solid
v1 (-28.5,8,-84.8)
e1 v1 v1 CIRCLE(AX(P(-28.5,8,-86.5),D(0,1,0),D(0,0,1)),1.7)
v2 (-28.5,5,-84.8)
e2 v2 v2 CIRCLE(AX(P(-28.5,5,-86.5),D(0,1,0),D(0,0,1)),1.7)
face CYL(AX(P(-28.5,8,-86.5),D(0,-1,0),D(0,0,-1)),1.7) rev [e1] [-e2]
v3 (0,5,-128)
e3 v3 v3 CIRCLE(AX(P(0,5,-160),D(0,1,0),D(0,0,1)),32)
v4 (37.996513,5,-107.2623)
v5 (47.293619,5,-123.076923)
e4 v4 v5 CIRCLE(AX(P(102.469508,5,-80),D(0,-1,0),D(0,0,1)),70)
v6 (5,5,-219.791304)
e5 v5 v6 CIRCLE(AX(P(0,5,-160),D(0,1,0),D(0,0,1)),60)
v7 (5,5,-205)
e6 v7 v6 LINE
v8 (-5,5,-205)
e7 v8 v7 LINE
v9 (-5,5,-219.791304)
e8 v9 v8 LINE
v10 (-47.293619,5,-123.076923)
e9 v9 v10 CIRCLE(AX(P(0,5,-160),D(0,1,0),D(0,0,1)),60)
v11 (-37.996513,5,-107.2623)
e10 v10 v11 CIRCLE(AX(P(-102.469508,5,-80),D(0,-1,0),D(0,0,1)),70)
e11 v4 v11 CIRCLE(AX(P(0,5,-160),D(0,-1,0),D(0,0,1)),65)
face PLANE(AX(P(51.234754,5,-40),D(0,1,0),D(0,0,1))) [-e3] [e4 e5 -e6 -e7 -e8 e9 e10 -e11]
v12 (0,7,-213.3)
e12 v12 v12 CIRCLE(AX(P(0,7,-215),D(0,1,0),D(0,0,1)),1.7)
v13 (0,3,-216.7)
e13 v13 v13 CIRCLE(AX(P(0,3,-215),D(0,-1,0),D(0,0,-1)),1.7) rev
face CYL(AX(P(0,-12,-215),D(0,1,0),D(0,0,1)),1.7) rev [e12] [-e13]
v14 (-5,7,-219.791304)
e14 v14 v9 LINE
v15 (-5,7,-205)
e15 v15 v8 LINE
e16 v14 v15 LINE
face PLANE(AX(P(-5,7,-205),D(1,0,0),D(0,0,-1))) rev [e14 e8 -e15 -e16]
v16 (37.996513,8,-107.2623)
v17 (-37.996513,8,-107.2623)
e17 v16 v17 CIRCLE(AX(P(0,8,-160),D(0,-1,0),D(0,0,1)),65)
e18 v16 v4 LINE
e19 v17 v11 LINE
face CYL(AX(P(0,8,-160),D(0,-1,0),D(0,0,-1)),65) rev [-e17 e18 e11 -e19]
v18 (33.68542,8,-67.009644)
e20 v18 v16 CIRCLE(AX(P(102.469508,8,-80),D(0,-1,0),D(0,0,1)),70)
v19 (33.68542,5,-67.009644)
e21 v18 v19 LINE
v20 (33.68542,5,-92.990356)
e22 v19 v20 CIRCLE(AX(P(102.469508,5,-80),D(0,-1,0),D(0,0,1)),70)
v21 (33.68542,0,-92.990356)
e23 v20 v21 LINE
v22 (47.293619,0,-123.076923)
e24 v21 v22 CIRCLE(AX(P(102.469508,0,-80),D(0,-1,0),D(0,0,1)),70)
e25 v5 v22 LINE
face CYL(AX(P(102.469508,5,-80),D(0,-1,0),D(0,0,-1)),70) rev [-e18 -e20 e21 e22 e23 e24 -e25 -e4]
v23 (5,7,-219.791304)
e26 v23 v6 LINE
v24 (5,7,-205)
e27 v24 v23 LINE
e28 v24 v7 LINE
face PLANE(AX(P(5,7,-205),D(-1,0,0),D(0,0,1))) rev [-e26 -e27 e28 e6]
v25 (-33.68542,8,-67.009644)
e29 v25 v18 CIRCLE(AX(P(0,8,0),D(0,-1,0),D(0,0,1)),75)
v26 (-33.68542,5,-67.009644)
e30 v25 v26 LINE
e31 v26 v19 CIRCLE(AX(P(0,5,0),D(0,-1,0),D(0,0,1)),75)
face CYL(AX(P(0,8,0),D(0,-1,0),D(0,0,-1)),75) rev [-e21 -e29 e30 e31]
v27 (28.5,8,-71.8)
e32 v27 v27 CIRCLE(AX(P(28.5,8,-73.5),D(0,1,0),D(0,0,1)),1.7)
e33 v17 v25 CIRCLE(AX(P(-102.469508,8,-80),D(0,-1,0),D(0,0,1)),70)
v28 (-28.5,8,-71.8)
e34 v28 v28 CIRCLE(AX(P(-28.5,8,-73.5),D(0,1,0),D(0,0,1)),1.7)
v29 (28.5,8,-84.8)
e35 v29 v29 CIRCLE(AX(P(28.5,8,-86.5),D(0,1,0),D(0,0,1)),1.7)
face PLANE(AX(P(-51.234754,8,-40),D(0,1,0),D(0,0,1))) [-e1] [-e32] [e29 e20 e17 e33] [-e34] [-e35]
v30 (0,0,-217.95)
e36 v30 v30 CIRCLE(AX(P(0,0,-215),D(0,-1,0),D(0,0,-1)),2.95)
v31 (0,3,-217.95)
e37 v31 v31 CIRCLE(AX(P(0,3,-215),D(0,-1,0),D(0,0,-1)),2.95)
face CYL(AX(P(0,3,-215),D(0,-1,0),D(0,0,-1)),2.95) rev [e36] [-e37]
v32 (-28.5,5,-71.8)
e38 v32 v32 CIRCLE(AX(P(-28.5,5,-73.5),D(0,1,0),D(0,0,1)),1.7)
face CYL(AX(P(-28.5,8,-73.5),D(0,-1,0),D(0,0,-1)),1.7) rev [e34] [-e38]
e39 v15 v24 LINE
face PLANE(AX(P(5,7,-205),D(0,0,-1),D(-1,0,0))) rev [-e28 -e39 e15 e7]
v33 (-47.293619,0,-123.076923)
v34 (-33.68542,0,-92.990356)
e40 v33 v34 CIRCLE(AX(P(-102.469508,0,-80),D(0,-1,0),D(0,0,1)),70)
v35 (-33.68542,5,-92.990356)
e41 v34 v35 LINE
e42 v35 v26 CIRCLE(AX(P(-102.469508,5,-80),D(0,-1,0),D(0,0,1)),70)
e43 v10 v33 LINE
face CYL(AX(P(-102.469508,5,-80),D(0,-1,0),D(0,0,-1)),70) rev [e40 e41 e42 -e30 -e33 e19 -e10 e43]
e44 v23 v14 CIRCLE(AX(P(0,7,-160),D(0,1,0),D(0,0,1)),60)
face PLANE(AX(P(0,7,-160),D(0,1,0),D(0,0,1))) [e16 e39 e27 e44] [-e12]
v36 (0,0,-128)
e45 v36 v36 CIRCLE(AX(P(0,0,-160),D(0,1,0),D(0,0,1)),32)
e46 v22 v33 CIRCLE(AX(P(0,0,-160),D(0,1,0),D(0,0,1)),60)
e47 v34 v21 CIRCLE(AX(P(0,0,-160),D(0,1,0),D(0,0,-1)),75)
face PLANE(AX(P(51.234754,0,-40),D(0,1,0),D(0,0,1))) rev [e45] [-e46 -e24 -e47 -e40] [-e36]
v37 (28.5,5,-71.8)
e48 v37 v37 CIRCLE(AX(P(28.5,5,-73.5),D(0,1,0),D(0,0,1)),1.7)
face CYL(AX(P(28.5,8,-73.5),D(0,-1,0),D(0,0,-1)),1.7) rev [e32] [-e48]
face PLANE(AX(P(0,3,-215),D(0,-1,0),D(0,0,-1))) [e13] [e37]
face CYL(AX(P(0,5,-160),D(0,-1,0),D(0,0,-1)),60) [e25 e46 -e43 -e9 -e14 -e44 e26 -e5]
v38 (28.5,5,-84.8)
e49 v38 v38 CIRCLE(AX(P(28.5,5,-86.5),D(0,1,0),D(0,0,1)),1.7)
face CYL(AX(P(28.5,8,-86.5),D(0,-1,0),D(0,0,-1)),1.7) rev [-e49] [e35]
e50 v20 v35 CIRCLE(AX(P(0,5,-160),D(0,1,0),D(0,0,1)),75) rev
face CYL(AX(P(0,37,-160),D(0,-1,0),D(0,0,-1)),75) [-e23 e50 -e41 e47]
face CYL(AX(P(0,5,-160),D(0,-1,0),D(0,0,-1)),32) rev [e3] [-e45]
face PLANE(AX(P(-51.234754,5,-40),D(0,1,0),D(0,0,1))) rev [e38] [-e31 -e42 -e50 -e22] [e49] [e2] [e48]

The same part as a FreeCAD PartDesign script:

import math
import FreeCAD as App
import Part
import Sketcher

V = App.Vector
Q = App.Units.Quantity

doc = App.newDocument("Part")
params = doc.addObject("Spreadsheet::Sheet", "Params")
for row, (alias, value) in enumerate([
    ("sketch1_diameter", "64 mm"),
    ("sketch1_radius", "60 mm"),
    ("sketch1_radius2", "70 mm"),
    ("pad1_length", "5 mm"),
    ("sketch2_radius", "60 mm"),
    ("sketch2_width", "10 mm"),
    ("pad2_length", "2 mm"),
    ("sketch3_diameter", "3.4 mm"),
    ("pocket1_length", "19 mm"),
    ("sketch4_diameter", "5.9 mm"),
    ("pocket2_length", "3 mm"),
    ("sketch5_diameter", "3.4 mm"),
    ("pocket3_length", "5 mm"),
    ("sketch6_radius", "75 mm"),
    ("sketch6_width", "130 mm"),
    ("sketch6_height", "200 mm"),
    ("pocket4_length", "37 mm"),
    ("sketch7_radius", "70 mm"),
    ("sketch7_radius2", "65 mm"),
    ("sketch7_radius3", "75 mm"),
    ("sketch7_diameter", "3.4 mm"),
    ("pad3_length", "3 mm"),
], start=1):
    params.set(f"A{row}", alias)
    params.set(f"B{row}", "=" + value)
    params.setAlias(f"B{row}", alias)

body = doc.addObject("PartDesign::Body", "Body")

# Sketch on XZ plane
sketch1 = body.newObject("Sketcher::SketchObject", "Sketch")
sketch1.AttachmentSupport = (doc.getObject("XZ_Plane"), [""])
sketch1.MapMode = "FlatFace"
sketch1.addGeometry([
    Part.ArcOfCircle(Part.Circle(V(0, 0, 0), V(0, 0, 1), 60), math.radians(-38), math.radians(218)),  # 0
    Part.ArcOfCircle(Part.Circle(V(102, -80, 0), V(0, 0, 1), 70), math.radians(142), math.radians(218)),  # 1
    Part.ArcOfCircle(Part.Circle(V(0, -160, 0), V(0, 0, 1), 60), math.radians(142), math.radians(398)),  # 2
    Part.ArcOfCircle(Part.Circle(V(-102, -80, 0), V(0, 0, 1), 70), math.radians(-38), math.radians(38)),  # 3
    Part.Circle(V(0, 0, 0), V(0, 0, 1), 32),  # 4
    Part.Circle(V(0, -160, 0), V(0, 0, 1), 32),  # 5
], False)
sketch1.addConstraint([
    Sketcher.Constraint("Tangent", 0, 1, 1, 1),
    Sketcher.Constraint("Tangent", 1, 2, 2, 2),
    Sketcher.Constraint("Tangent", 2, 1, 3, 1),
    Sketcher.Constraint("Tangent", 3, 2, 0, 2),
    Sketcher.Constraint("Coincident", 0, 3, -1, 1),
    Sketcher.Constraint("Coincident", 4, 3, -1, 1),
    Sketcher.Constraint("Coincident", 5, 3, 2, 3),
    Sketcher.Constraint("Equal", 0, 2),
    Sketcher.Constraint("Equal", 1, 3),
    Sketcher.Constraint("Equal", 4, 5),
    Sketcher.Constraint("PointOnObject", 2, 3, -2),
    Sketcher.Constraint("Diameter", 4, Q("64 mm")),
    Sketcher.Constraint("Radius", 0, Q("60 mm")),
    Sketcher.Constraint("Radius", 1, Q("70 mm")),
    Sketcher.Constraint("DistanceY", 1, 3, -1, 1, Q("80 mm")),
])
sketch1.setExpression("Constraints[11]", "Params.sketch1_diameter")
sketch1.setExpression("Constraints[12]", "Params.sketch1_radius")
sketch1.setExpression("Constraints[13]", "Params.sketch1_radius2")
pad1 = body.newObject("PartDesign::Pad", "Pad")
pad1.Profile = sketch1
pad1.setExpression("Length", "Params.pad1_length")
pad1.Reversed = True

# Sketch on XZ plane
sketch2 = body.newObject("Sketcher::SketchObject", "Sketch001")
sketch2.AttachmentSupport = (doc.getObject("XZ_Plane"), [""])
sketch2.MapMode = "FlatFace"
sketch2.AttachmentOffset = App.Placement(V(0, 0, -5), App.Rotation())
sketch2.addGeometry([
    Part.LineSegment(V(-5, -205, 0), V(5, -205, 0)),  # 0
    Part.LineSegment(V(5, -205, 0), V(5, -220, 0)),  # 1
    Part.ArcOfCircle(Part.Circle(V(0, -160, 0), V(0, 0, 1), 60), math.radians(-94.78), math.radians(-85.22)),  # 2
    Part.LineSegment(V(-5, -220, 0), V(-5, -205, 0)),  # 3
    Part.LineSegment(V(5, 45, 0), V(-5, 45, 0)),  # 4
    Part.LineSegment(V(-5, 45, 0), V(-5, 60, 0)),  # 5
    Part.ArcOfCircle(Part.Circle(V(0, 0, 0), V(0, 0, 1), 60), math.radians(85.22), math.radians(94.78)),  # 6
    Part.LineSegment(V(5, 60, 0), V(5, 45, 0)),  # 7
], False)
sketch2.addConstraint([
    Sketcher.Constraint("Coincident", 0, 2, 1, 1),
    Sketcher.Constraint("Coincident", 1, 2, 2, 2),
    Sketcher.Constraint("Coincident", 2, 1, 3, 1),
    Sketcher.Constraint("Coincident", 3, 2, 0, 1),
    Sketcher.Constraint("Coincident", 4, 2, 5, 1),
    Sketcher.Constraint("Coincident", 5, 2, 6, 2),
    Sketcher.Constraint("Coincident", 6, 1, 7, 1),
    Sketcher.Constraint("Coincident", 7, 2, 4, 1),
    Sketcher.Constraint("Horizontal", 0),
    Sketcher.Constraint("Vertical", 1),
    Sketcher.Constraint("Vertical", 3),
    Sketcher.Constraint("Horizontal", 4),
    Sketcher.Constraint("Vertical", 5),
    Sketcher.Constraint("Vertical", 7),
    Sketcher.Constraint("Coincident", 6, 3, -1, 1),
    Sketcher.Constraint("Equal", 2, 6),
    Sketcher.Constraint("Symmetric", 1, 2, 2, 1, -2),
    Sketcher.Constraint("Horizontal", 5, 2, 6, 1),
    Sketcher.Constraint("Vertical", 3, 2, 4, 2),
    Sketcher.Constraint("Equal", 3, 5),
    Sketcher.Constraint("Radius", 2, Q("60 mm")),
    Sketcher.Constraint("DistanceX", 0, 1, 0, 2, Q("10 mm")),
    Sketcher.Constraint("DistanceY", 2, 3, -1, 1, Q("160 mm")),
    Sketcher.Constraint("DistanceY", 0, 2, -1, 1, Q("205 mm")),
])
sketch2.setExpression("Constraints[20]", "Params.sketch2_radius")
sketch2.setExpression("Constraints[21]", "Params.sketch2_width")
pad2 = body.newObject("PartDesign::Pad", "Pad001")
pad2.Profile = sketch2
pad2.setExpression("Length", "Params.pad2_length")
pad2.Reversed = True

# Sketch on XZ plane
sketch3 = body.newObject("Sketcher::SketchObject", "Sketch002")
sketch3.AttachmentSupport = (doc.getObject("XZ_Plane"), [""])
sketch3.MapMode = "FlatFace"
sketch3.AttachmentOffset = App.Placement(V(0, 0, -7), App.Rotation())
sketch3.addGeometry([
    Part.Circle(V(0, -215, 0), V(0, 0, 1), 1.7),
    Part.Circle(V(0, 55, 0), V(0, 0, 1), 1.7),
], False)
sketch3.addConstraint([
    Sketcher.Constraint("Equal", 0, 1),
    Sketcher.Constraint("PointOnObject", 0, 3, -2),
    Sketcher.Constraint("PointOnObject", 1, 3, -2),
    Sketcher.Constraint("Diameter", 0, Q("3.4 mm")),
    Sketcher.Constraint("DistanceY", 0, 3, -1, 1, Q("215 mm")),
    Sketcher.Constraint("DistanceY", -1, 1, 1, 3, Q("55 mm")),
])
sketch3.setExpression("Constraints[3]", "Params.sketch3_diameter")
pocket1 = body.newObject("PartDesign::Pocket", "Pocket")
pocket1.Profile = sketch3
pocket1.setExpression("Length", "Params.pocket1_length")
pocket1.Reversed = True

# Sketch on XZ plane
sketch4 = body.newObject("Sketcher::SketchObject", "Sketch003")
sketch4.AttachmentSupport = (doc.getObject("XZ_Plane"), [""])
sketch4.MapMode = "FlatFace"
sketch4.addGeometry([
    Part.Circle(V(0, 55, 0), V(0, 0, 1), 3),
    Part.Circle(V(0, -215, 0), V(0, 0, 1), 3),
], False)
sketch4.addConstraint([
    Sketcher.Constraint("Equal", 0, 1),
    Sketcher.Constraint("PointOnObject", 0, 3, -2),
    Sketcher.Constraint("PointOnObject", 1, 3, -2),
    Sketcher.Constraint("Diameter", 0, Q("5.9 mm")),
    Sketcher.Constraint("DistanceY", -1, 1, 0, 3, Q("55 mm")),
    Sketcher.Constraint("DistanceY", 1, 3, -1, 1, Q("215 mm")),
])
sketch4.setExpression("Constraints[3]", "Params.sketch4_diameter")
pocket2 = body.newObject("PartDesign::Pocket", "Pocket001")
pocket2.Profile = sketch4
pocket2.setExpression("Length", "Params.pocket2_length")

# Sketch on XZ plane
sketch5 = body.newObject("Sketcher::SketchObject", "Sketch004")
sketch5.AttachmentSupport = (doc.getObject("XZ_Plane"), [""])
sketch5.MapMode = "FlatFace"
sketch5.addGeometry([
    Part.Circle(V(-28.5, -73.5, 0), V(0, 0, 1), 1.7),
    Part.Circle(V(-28.5, -86.5, 0), V(0, 0, 1), 1.7),
    Part.Circle(V(28.5, -86.5, 0), V(0, 0, 1), 1.7),
    Part.Circle(V(28.5, -73.5, 0), V(0, 0, 1), 1.7),
], False)
sketch5.addConstraint([
    Sketcher.Constraint("Equal", 0, 1),
    Sketcher.Constraint("Equal", 1, 2),
    Sketcher.Constraint("Equal", 2, 3),
    Sketcher.Constraint("Symmetric", 1, 3, 2, 3, -2),
    Sketcher.Constraint("Symmetric", 0, 3, 3, 3, -2),
    Sketcher.Constraint("Vertical", 0, 3, 1, 3),
    Sketcher.Constraint("Diameter", 0, Q("3.4 mm")),
    Sketcher.Constraint("DistanceY", 1, 3, 0, 3, Q("13 mm")),
    Sketcher.Constraint("DistanceX", 1, 3, 2, 3, Q("57 mm")),
    Sketcher.Constraint("DistanceY", 0, 3, -1, 1, Q("73.5 mm")),
])
sketch5.setExpression("Constraints[6]", "Params.sketch5_diameter")
pocket3 = body.newObject("PartDesign::Pocket", "Pocket002")
pocket3.Profile = sketch5
pocket3.setExpression("Length", "Params.pocket3_length")

# Sketch on XZ plane
sketch6 = body.newObject("Sketcher::SketchObject", "Sketch005")
sketch6.AttachmentSupport = (doc.getObject("XZ_Plane"), [""])
sketch6.MapMode = "FlatFace"
sketch6.addGeometry([
    Part.LineSegment(V(65, 77, 0), V(-65, 77, 0)),
    Part.LineSegment(V(-65, 77, 0), V(-65, -123, 0)),
    Part.ArcOfCircle(Part.Circle(V(0, -160, 0), V(0, 0, 1), 75), math.radians(30), math.radians(150)),
    Part.LineSegment(V(65, -123, 0), V(65, 77, 0)),
], False)
sketch6.addConstraint([
    Sketcher.Constraint("Coincident", 0, 2, 1, 1),
    Sketcher.Constraint("Coincident", 1, 2, 2, 2),
    Sketcher.Constraint("Coincident", 2, 1, 3, 1),
    Sketcher.Constraint("Coincident", 3, 2, 0, 1),
    Sketcher.Constraint("Horizontal", 0),
    Sketcher.Constraint("Vertical", 1),
    Sketcher.Constraint("Vertical", 3),
    Sketcher.Constraint("Symmetric", 1, 2, 2, 1, -2),
    Sketcher.Constraint("Radius", 2, Q("75 mm")),
    Sketcher.Constraint("DistanceX", 0, 2, 0, 1, Q("130 mm")),
    Sketcher.Constraint("DistanceY", 1, 2, 1, 1, Q("200 mm")),
    Sketcher.Constraint("DistanceY", 2, 3, -1, 1, Q("160 mm")),
])
sketch6.setExpression("Constraints[8]", "Params.sketch6_radius")
sketch6.setExpression("Constraints[9]", "Params.sketch6_width")
sketch6.setExpression("Constraints[10]", "Params.sketch6_height")
pocket4 = body.newObject("PartDesign::Pocket", "Pocket003")
pocket4.Profile = sketch6
pocket4.setExpression("Length", "Params.pocket4_length")

# Sketch on XZ plane
sketch7 = body.newObject("Sketcher::SketchObject", "Sketch006")
sketch7.AttachmentSupport = (doc.getObject("XZ_Plane"), [""])
sketch7.MapMode = "FlatFace"
sketch7.AttachmentOffset = App.Placement(V(0, 0, -5), App.Rotation())
sketch7.addGeometry([
    Part.ArcOfCircle(Part.Circle(V(102.5, -80, 0), V(0, 0, 1), 70), math.radians(169), math.radians(203)),  # 0
    Part.ArcOfCircle(Part.Circle(V(0, -160, 0), V(0, 0, 1), 65), math.radians(54), math.radians(126)),  # 1
    Part.ArcOfCircle(Part.Circle(V(-102.5, -80, 0), V(0, 0, 1), 70), math.radians(-23), math.radians(11)),  # 2
    Part.ArcOfCircle(Part.Circle(V(0, 0, 0), V(0, 0, 1), 75), math.radians(-117), math.radians(-63)),  # 3
    Part.Circle(V(28.5, -73.5, 0), V(0, 0, 1), 1.7),  # 4
    Part.Circle(V(-28.5, -73.5, 0), V(0, 0, 1), 1.7),  # 5
    Part.Circle(V(28.5, -86.5, 0), V(0, 0, 1), 1.7),  # 6
    Part.Circle(V(-28.5, -86.5, 0), V(0, 0, 1), 1.7),  # 7
], False)
sketch7.addConstraint([
    Sketcher.Constraint("Coincident", 0, 2, 1, 1),
    Sketcher.Constraint("Coincident", 1, 2, 2, 1),
    Sketcher.Constraint("Coincident", 2, 2, 3, 1),
    Sketcher.Constraint("Coincident", 3, 2, 0, 1),
    Sketcher.Constraint("Coincident", 3, 3, -1, 1),
    Sketcher.Constraint("Equal", 0, 2),
    Sketcher.Constraint("Equal", 4, 5),
    Sketcher.Constraint("Equal", 5, 6),
    Sketcher.Constraint("Equal", 6, 7),
    Sketcher.Constraint("Symmetric", 0, 3, 2, 3, -2),
    Sketcher.Constraint("Symmetric", 4, 3, 5, 3, -2),
    Sketcher.Constraint("Symmetric", 6, 3, 7, 3, -2),
    Sketcher.Constraint("PointOnObject", 1, 3, -2),
    Sketcher.Constraint("Vertical", 4, 3, 6, 3),
    Sketcher.Constraint("Radius", 0, Q("70 mm")),
    Sketcher.Constraint("Radius", 1, Q("65 mm")),
    Sketcher.Constraint("Radius", 3, Q("75 mm")),
    Sketcher.Constraint("Diameter", 4, Q("3.4 mm")),
    Sketcher.Constraint("DistanceY", 0, 3, -1, 1, Q("80 mm")),
    Sketcher.Constraint("DistanceY", 1, 3, -1, 1, Q("160 mm")),
    Sketcher.Constraint("DistanceX", 5, 3, 4, 3, Q("57 mm")),
    Sketcher.Constraint("DistanceY", 6, 3, 4, 3, Q("13 mm")),
    Sketcher.Constraint("DistanceY", 4, 3, -1, 1, Q("73.5 mm")),
    Sketcher.Constraint("DistanceY", 0, 2, -1, 1, Q("107.2623 mm")),
])
sketch7.setExpression("Constraints[14]", "Params.sketch7_radius")
sketch7.setExpression("Constraints[15]", "Params.sketch7_radius2")
sketch7.setExpression("Constraints[16]", "Params.sketch7_radius3")
sketch7.setExpression("Constraints[17]", "Params.sketch7_diameter")
pad3 = body.newObject("PartDesign::Pad", "Pad002")
pad3.Profile = sketch7
pad3.setExpression("Length", "Params.pad3_length")
pad3.Reversed = True

doc.recompute()
